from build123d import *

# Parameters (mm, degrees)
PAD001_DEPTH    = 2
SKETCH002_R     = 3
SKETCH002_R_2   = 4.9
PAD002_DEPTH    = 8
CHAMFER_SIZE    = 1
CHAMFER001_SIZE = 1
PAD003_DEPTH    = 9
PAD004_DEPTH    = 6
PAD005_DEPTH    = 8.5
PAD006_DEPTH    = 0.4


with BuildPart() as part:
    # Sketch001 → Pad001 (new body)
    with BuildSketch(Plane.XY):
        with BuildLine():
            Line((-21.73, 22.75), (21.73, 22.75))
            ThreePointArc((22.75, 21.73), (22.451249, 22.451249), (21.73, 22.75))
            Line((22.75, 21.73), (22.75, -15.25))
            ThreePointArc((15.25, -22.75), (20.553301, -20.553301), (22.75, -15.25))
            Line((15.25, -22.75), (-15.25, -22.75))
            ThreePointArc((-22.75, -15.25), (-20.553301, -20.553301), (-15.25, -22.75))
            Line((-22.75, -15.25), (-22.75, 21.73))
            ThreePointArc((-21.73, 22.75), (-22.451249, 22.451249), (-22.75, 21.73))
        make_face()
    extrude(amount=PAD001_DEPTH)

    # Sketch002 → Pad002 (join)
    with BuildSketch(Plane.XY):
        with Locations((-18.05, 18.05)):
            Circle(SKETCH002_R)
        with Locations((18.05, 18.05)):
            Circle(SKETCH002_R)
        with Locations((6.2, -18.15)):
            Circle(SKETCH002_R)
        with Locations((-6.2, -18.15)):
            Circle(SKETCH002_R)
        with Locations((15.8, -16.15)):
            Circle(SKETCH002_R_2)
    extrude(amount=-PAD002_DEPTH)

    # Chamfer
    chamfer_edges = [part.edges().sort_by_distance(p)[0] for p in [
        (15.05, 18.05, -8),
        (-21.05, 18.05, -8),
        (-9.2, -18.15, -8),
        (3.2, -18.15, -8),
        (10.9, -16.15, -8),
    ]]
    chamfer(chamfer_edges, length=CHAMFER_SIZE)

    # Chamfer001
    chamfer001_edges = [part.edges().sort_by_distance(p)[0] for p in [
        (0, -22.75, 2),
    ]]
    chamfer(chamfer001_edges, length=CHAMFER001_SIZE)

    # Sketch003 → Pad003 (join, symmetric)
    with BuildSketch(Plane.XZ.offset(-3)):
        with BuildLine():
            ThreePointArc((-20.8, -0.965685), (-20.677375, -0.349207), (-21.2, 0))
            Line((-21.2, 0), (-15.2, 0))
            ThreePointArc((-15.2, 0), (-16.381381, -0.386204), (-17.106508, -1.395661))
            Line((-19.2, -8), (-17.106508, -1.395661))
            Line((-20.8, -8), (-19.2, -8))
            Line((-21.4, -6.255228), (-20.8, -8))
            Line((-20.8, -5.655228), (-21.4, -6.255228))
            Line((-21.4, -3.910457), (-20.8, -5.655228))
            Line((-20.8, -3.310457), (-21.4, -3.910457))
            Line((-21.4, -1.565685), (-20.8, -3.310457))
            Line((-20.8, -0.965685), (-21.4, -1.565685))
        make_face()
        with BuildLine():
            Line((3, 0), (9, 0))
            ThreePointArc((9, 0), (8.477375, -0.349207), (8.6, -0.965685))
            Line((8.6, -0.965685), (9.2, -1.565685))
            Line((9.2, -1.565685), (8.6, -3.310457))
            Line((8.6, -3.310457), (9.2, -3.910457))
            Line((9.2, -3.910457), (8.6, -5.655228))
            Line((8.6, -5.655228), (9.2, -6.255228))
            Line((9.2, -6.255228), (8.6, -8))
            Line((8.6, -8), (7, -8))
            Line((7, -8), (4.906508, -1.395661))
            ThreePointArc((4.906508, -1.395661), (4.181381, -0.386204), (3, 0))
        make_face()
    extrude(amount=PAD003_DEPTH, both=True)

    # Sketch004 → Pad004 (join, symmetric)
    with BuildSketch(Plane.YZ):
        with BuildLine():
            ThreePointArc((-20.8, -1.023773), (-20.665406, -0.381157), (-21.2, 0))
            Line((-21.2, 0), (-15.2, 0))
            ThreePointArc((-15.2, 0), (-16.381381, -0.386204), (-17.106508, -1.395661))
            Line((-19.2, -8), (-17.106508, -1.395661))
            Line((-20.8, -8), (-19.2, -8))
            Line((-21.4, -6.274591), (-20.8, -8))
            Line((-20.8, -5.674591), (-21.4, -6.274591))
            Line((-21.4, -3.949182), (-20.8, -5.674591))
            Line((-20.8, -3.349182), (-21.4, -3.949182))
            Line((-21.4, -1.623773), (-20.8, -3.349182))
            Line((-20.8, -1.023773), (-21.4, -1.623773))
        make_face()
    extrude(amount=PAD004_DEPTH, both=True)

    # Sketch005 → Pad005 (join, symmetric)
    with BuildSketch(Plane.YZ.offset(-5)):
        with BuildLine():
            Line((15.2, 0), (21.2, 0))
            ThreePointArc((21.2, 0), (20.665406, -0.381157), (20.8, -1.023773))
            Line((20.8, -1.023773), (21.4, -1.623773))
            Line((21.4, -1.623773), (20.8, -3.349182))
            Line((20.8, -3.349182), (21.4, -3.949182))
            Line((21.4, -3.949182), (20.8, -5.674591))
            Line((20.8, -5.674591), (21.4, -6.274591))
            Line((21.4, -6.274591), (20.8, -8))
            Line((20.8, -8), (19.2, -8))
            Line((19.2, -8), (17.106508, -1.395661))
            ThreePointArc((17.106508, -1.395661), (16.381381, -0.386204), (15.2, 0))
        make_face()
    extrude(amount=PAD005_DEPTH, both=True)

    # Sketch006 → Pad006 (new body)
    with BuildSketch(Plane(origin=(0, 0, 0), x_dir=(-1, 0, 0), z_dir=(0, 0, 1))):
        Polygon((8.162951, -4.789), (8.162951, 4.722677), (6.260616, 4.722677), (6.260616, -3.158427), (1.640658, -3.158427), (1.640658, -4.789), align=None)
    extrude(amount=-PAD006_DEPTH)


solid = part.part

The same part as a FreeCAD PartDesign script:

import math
import FreeCAD as App
import Part
import Sketcher
Q = App.Units.Quantity


def edges_at(feature, points):
    """Names of the edges that pass closest to the given points."""
    edges = feature.Shape.Edges
    near = lambda p: min(range(len(edges)), key=lambda i: edges[i].distToShape(Part.Vertex(*p))[0])
    return sorted({f"Edge{near(p) + 1}" for p in points})


def add_polygon(sketch, points):
    """Adds a closed chain of lines whose ends are joined by coincident constraints."""
    first, n = sketch.GeometryCount, len(points)
    for a, b in zip(points, points[1:] + points[:1]):
        sketch.addGeometry(Part.LineSegment(App.Vector(*a, 0), App.Vector(*b, 0)), False)
    for i in range(n):
        sketch.addConstraint(Sketcher.Constraint("Coincident", first + i, 2, first + (i + 1) % n, 1))

doc = App.newDocument("Part")
body = doc.addObject("PartDesign::Body", "Body")

# Sketch on XY plane
sketch1 = doc.addObject("Sketcher::SketchObject", "Sketch")
body.addObject(sketch1)
sketch1.AttachmentSupport = (doc.XY_Plane, [""])
sketch1.MapMode = "FlatFace"
sketch1.addGeometry(Part.LineSegment(App.Vector(21.7, 22.8, 0), App.Vector(-21.7, 22.8, 0)), False)
sketch1.addGeometry(Part.ArcOfCircle(Part.Circle(App.Vector(-21.7, 21.7, 0), App.Vector(0, 0, 1), 1), math.radians(90), math.radians(180)), False)
sketch1.addGeometry(Part.LineSegment(App.Vector(-22.8, 21.7, 0), App.Vector(-22.8, -15.2, 0)), False)
sketch1.addGeometry(Part.ArcOfCircle(Part.Circle(App.Vector(-15.3, -15.3, 0), App.Vector(0, 0, 1), 7.5), math.radians(180), math.radians(270)), False)
sketch1.addGeometry(Part.LineSegment(App.Vector(-15.2, -22.8, 0), App.Vector(15.2, -22.8, 0)), False)
sketch1.addGeometry(Part.ArcOfCircle(Part.Circle(App.Vector(15.3, -15.3, 0), App.Vector(0, 0, 1), 7.5), math.radians(-90), math.radians(0)), False)
sketch1.addGeometry(Part.LineSegment(App.Vector(22.8, -15.2, 0), App.Vector(22.8, 21.7, 0)), False)
sketch1.addGeometry(Part.ArcOfCircle(Part.Circle(App.Vector(21.7, 21.7, 0), App.Vector(0, 0, 1), 1), math.radians(0), math.radians(90)), False)
sketch1.addConstraint(Sketcher.Constraint("Tangent", 0, 2, 1, 1))
sketch1.addConstraint(Sketcher.Constraint("Tangent", 1, 2, 2, 1))
sketch1.addConstraint(Sketcher.Constraint("Tangent", 2, 2, 3, 1))
sketch1.addConstraint(Sketcher.Constraint("Tangent", 3, 2, 4, 1))
sketch1.addConstraint(Sketcher.Constraint("Tangent", 4, 2, 5, 1))
sketch1.addConstraint(Sketcher.Constraint("Tangent", 5, 2, 6, 1))
sketch1.addConstraint(Sketcher.Constraint("Tangent", 6, 2, 7, 1))
sketch1.addConstraint(Sketcher.Constraint("Tangent", 7, 2, 0, 1))
sketch1.addConstraint(Sketcher.Constraint("Horizontal", 0))
sketch1.addConstraint(Sketcher.Constraint("Vertical", 2))
sketch1.addConstraint(Sketcher.Constraint("Horizontal", 4))
sketch1.addConstraint(Sketcher.Constraint("Vertical", 6))
sketch1.addConstraint(Sketcher.Constraint("Equal", 3, 5))
sketch1.addConstraint(Sketcher.Constraint("Equal", 1, 7))
sketch1.addConstraint(Sketcher.Constraint("Radius", 3, 7.5))
sketch1.addConstraint(Sketcher.Constraint("Radius", 1, 1.02))
sketch1.addConstraint(Sketcher.Constraint("DistanceX", 4, 1, 4, 2, 30.5))
sketch1.addConstraint(Sketcher.Constraint("DistanceY", 3, 3, 0, 2, 38.0))
sketch1.addConstraint(Sketcher.Constraint("DistanceX", 1, 3, -1, 1, 21.73))
sketch1.addConstraint(Sketcher.Constraint("DistanceY", -1, 1, 1, 3, 21.73))
pad1 = doc.addObject("PartDesign::Pad", "Pad")
body.addObject(pad1)
pad1.Profile = sketch1
pad1.Length = 2

# Sketch on XY plane
sketch2 = doc.addObject("Sketcher::SketchObject", "Sketch001")
body.addObject(sketch2)
sketch2.AttachmentSupport = (doc.XY_Plane, [""])
sketch2.MapMode = "FlatFace"
sketch2.addGeometry(Part.Circle(App.Vector(-18.1, 18.1, 0), App.Vector(0, 0, 1), 3), False)
sketch2.addGeometry(Part.Circle(App.Vector(18.1, 18.1, 0), App.Vector(0, 0, 1), 3), False)
sketch2.addGeometry(Part.Circle(App.Vector(6.2, -18.1, 0), App.Vector(0, 0, 1), 3), False)
sketch2.addGeometry(Part.Circle(App.Vector(-6.2, -18.1, 0), App.Vector(0, 0, 1), 3), False)
sketch2.addGeometry(Part.Circle(App.Vector(15.8, -16.1, 0), App.Vector(0, 0, 1), 4.9), False)
sketch2.addConstraint(Sketcher.Constraint("Equal", 0, 1))
sketch2.addConstraint(Sketcher.Constraint("Equal", 1, 2))
sketch2.addConstraint(Sketcher.Constraint("Equal", 2, 3))
sketch2.addConstraint(Sketcher.Constraint("Symmetric", 0, 3, 1, 3, -2))
sketch2.addConstraint(Sketcher.Constraint("Symmetric", 2, 3, 3, 3, -2))
sketch2.addConstraint(Sketcher.Constraint("Diameter", 0, 6.0))
sketch2.addConstraint(Sketcher.Constraint("Diameter", 4, 9.8))
sketch2.addConstraint(Sketcher.Constraint("DistanceY", 2, 3, 4, 3, 2.0))
sketch2.addConstraint(Sketcher.Constraint("DistanceX", 3, 3, 4, 3, 22.0))
sketch2.addConstraint(Sketcher.Constraint("DistanceX", -1, 1, 2, 3, 6.2))
sketch2.addConstraint(Sketcher.Constraint("DistanceX", 0, 3, 1, 3, 36.1))
sketch2.addConstraint(Sketcher.Constraint("DistanceY", 2, 3, 1, 3, 36.2))
sketch2.addConstraint(Sketcher.Constraint("DistanceY", -1, 1, 0, 3, 18.05))
pad2 = doc.addObject("PartDesign::Pad", "Pad001")
body.addObject(pad2)
pad2.Profile = sketch2
pad2.Length = 8
pad2.Reversed = True
doc.recompute()

chamfer = doc.addObject("PartDesign::Chamfer", "Chamfer")
body.addObject(chamfer)
chamfer.Base = (pad2, edges_at(pad2, [
    (15.05, 18.05, -8),
    (-21.05, 18.05, -8),
    (-9.2, -18.15, -8),
    (3.2, -18.15, -8),
    (10.9, -16.15, -8),
]))
chamfer.Size = 1
doc.recompute()

chamfer2 = doc.addObject("PartDesign::Chamfer", "Chamfer001")
body.addObject(chamfer2)
chamfer2.Base = (chamfer, edges_at(chamfer, [(0, -22.75, 2)]))
chamfer2.Size = 1

# Sketch on XZ plane
sketch3 = doc.addObject("Sketcher::SketchObject", "Sketch002")
body.addObject(sketch3)
sketch3.AttachmentSupport = (doc.XZ_Plane, [""])
sketch3.MapMode = "FlatFace"
sketch3.AttachmentOffset = App.Placement(App.Vector(0, 0, -3), App.Rotation())
sketch3.addGeometry(Part.ArcOfCircle(Part.Circle(App.Vector(-21.2, -0.6, 0), App.Vector(0, 0, 1), 0.6), math.radians(-45), math.radians(90)), False)
sketch3.addGeometry(Part.LineSegment(App.Vector(-20.8, -1, 0), App.Vector(-21.4, -1.6, 0)), False)
sketch3.addGeometry(Part.LineSegment(App.Vector(-21.4, -1.6, 0), App.Vector(-20.8, -3.3, 0)), False)
sketch3.addGeometry(Part.LineSegment(App.Vector(-20.8, -3.3, 0), App.Vector(-21.4, -3.9, 0)), False)
sketch3.addGeometry(Part.LineSegment(App.Vector(-21.4, -3.9, 0), App.Vector(-20.8, -5.7, 0)), False)
sketch3.addGeometry(Part.LineSegment(App.Vector(-20.8, -5.7, 0), App.Vector(-21.4, -6.3, 0)), False)
sketch3.addGeometry(Part.LineSegment(App.Vector(-21.4, -6.3, 0), App.Vector(-20.8, -8, 0)), False)
sketch3.addGeometry(Part.LineSegment(App.Vector(-20.8, -8, 0), App.Vector(-19.2, -8, 0)), False)
sketch3.addGeometry(Part.LineSegment(App.Vector(-19.2, -8, 0), App.Vector(-17.1, -1.4, 0)), False)
sketch3.addGeometry(Part.ArcOfCircle(Part.Circle(App.Vector(-15.2, -2, 0), App.Vector(0, 0, 1), 2), math.radians(90), math.radians(162)), False)
sketch3.addGeometry(Part.LineSegment(App.Vector(-15.2, 0, 0), App.Vector(-21.2, 0, 0)), False)
sketch3.addGeometry(Part.LineSegment(App.Vector(9, 0, 0), App.Vector(3, 0, 0)), False)
sketch3.addGeometry(Part.ArcOfCircle(Part.Circle(App.Vector(3, -2, 0), App.Vector(0, 0, 1), 2), math.radians(18), math.radians(90)), False)
sketch3.addGeometry(Part.LineSegment(App.Vector(4.9, -1.4, 0), App.Vector(7, -8, 0)), False)
sketch3.addGeometry(Part.LineSegment(App.Vector(7, -8, 0), App.Vector(8.6, -8, 0)), False)
sketch3.addGeometry(Part.LineSegment(App.Vector(8.6, -8, 0), App.Vector(9.2, -6.3, 0)), False)
sketch3.addGeometry(Part.LineSegment(App.Vector(9.2, -6.3, 0), App.Vector(8.6, -5.7, 0)), False)
sketch3.addGeometry(Part.LineSegment(App.Vector(8.6, -5.7, 0), App.Vector(9.2, -3.9, 0)), False)
sketch3.addGeometry(Part.LineSegment(App.Vector(9.2, -3.9, 0), App.Vector(8.6, -3.3, 0)), False)
sketch3.addGeometry(Part.LineSegment(App.Vector(8.6, -3.3, 0), App.Vector(9.2, -1.6, 0)), False)
sketch3.addGeometry(Part.LineSegment(App.Vector(9.2, -1.6, 0), App.Vector(8.6, -1, 0)), False)
sketch3.addGeometry(Part.ArcOfCircle(Part.Circle(App.Vector(9, -0.6, 0), App.Vector(0, 0, 1), 0.6), math.radians(90), math.radians(225)), False)
sketch3.addConstraint(Sketcher.Constraint("Tangent", 0, 1, 1, 1))
sketch3.addConstraint(Sketcher.Constraint("Coincident", 1, 2, 2, 1))
sketch3.addConstraint(Sketcher.Constraint("Coincident", 2, 2, 3, 1))
sketch3.addConstraint(Sketcher.Constraint("Coincident", 3, 2, 4, 1))
sketch3.addConstraint(Sketcher.Constraint("Coincident", 4, 2, 5, 1))
sketch3.addConstraint(Sketcher.Constraint("Coincident", 5, 2, 6, 1))
sketch3.addConstraint(Sketcher.Constraint("Coincident", 6, 2, 7, 1))
sketch3.addConstraint(Sketcher.Constraint("Coincident", 7, 2, 8, 1))
sketch3.addConstraint(Sketcher.Constraint("Tangent", 8, 2, 9, 2))
sketch3.addConstraint(Sketcher.Constraint("Tangent", 9, 1, 10, 1))
sketch3.addConstraint(Sketcher.Constraint("Tangent", 10, 2, 0, 2))
sketch3.addConstraint(Sketcher.Constraint("Tangent", 11, 2, 12, 2))
sketch3.addConstraint(Sketcher.Constraint("Tangent", 12, 1, 13, 1))
sketch3.addConstraint(Sketcher.Constraint("Coincident", 13, 2, 14, 1))
sketch3.addConstraint(Sketcher.Constraint("Coincident", 14, 2, 15, 1))
sketch3.addConstraint(Sketcher.Constraint("Coincident", 15, 2, 16, 1))
sketch3.addConstraint(Sketcher.Constraint("Coincident", 16, 2, 17, 1))
sketch3.addConstraint(Sketcher.Constraint("Coincident", 17, 2, 18, 1))
sketch3.addConstraint(Sketcher.Constraint("Coincident", 18, 2, 19, 1))
sketch3.addConstraint(Sketcher.Constraint("Coincident", 19, 2, 20, 1))
sketch3.addConstraint(Sketcher.Constraint("Tangent", 20, 2, 21, 2))
sketch3.addConstraint(Sketcher.Constraint("Tangent", 21, 1, 11, 1))
sketch3.addConstraint(Sketcher.Constraint("Horizontal", 7))
sketch3.addConstraint(Sketcher.Constraint("Horizontal", 10))
sketch3.addConstraint(Sketcher.Constraint("Horizontal", 11))
sketch3.addConstraint(Sketcher.Constraint("Horizontal", 14))
sketch3.addConstraint(Sketcher.Constraint("Equal", 9, 12))
sketch3.addConstraint(Sketcher.Constraint("Equal", 0, 21))
sketch3.addConstraint(Sketcher.Constraint("PointOnObject", 9, 1, -1))
sketch3.addConstraint(Sketcher.Constraint("PointOnObject", 11, 2, -1))
sketch3.addConstraint(Sketcher.Constraint("Parallel", 1, 3))
sketch3.addConstraint(Sketcher.Constraint("Parallel", 2, 4))
sketch3.addConstraint(Sketcher.Constraint("Parallel", 3, 5))
sketch3.addConstraint(Sketcher.Constraint("Parallel", 4, 6))
sketch3.addConstraint(Sketcher.Constraint("Perpendicular", 5, 16))
sketch3.addConstraint(Sketcher.Constraint("Parallel", 15, 17))
sketch3.addConstraint(Sketcher.Constraint("Parallel", 16, 18))
sketch3.addConstraint(Sketcher.Constraint("Parallel", 17, 19))
sketch3.addConstraint(Sketcher.Constraint("Parallel", 18, 20))
sketch3.addConstraint(Sketcher.Constraint("Horizontal", 8, 2, 12, 1))
sketch3.addConstraint(Sketcher.Constraint("Horizontal", 7, 2, 13, 2))
sketch3.addConstraint(Sketcher.Constraint("Horizontal", 5, 2, 15, 2))
sketch3.addConstraint(Sketcher.Constraint("Horizontal", 4, 2, 16, 2))
sketch3.addConstraint(Sketcher.Constraint("Horizontal", 3, 2, 17, 2))
sketch3.addConstraint(Sketcher.Constraint("Horizontal", 2, 2, 18, 2))
sketch3.addConstraint(Sketcher.Constraint("Horizontal", 1, 2, 19, 2))
sketch3.addConstraint(Sketcher.Constraint("Horizontal", 0, 1, 20, 2))
sketch3.addConstraint(Sketcher.Constraint("Vertical", 0, 1, 2, 2))
sketch3.addConstraint(Sketcher.Constraint("Vertical", 1, 2, 3, 2))
sketch3.addConstraint(Sketcher.Constraint("Vertical", 2, 2, 4, 2))
sketch3.addConstraint(Sketcher.Constraint("Vertical", 3, 2, 5, 2))
sketch3.addConstraint(Sketcher.Constraint("Vertical", 4, 2, 6, 2))
sketch3.addConstraint(Sketcher.Constraint("Vertical", 14, 2, 16, 2))
sketch3.addConstraint(Sketcher.Constraint("Equal", 10, 11))
sketch3.addConstraint(Sketcher.Constraint("Radius", 9, 2.0))
sketch3.addConstraint(Sketcher.Constraint("DistanceX", 10, 2, 10, 1, 6.0))
sketch3.addConstraint(Sketcher.Constraint("DistanceX", 7, 1, 7, 2, 1.6))
sketch3.addConstraint(Sketcher.Constraint("DistanceX", -1, 1, 12, 3, 2.999999))
sketch3.addConstraint(Sketcher.Constraint("DistanceY", 6, 2, -1, 1, 8.0))
sketch3.addConstraint(Sketcher.Constraint("DistanceX", -1, 1, 13, 2, 7.0))
sketch3.addConstraint(Sketcher.Constraint("DistanceY", 1, 2, 0, 3, 1.0))
sketch3.addConstraint(Sketcher.Constraint("DistanceX", 0, 3, -1, 1, 21.2))
pad3 = doc.addObject("PartDesign::Pad", "Pad002")
body.addObject(pad3)
pad3.Profile = sketch3
pad3.Length = 18
pad3.Midplane = True

# Sketch on YZ plane
sketch4 = doc.addObject("Sketcher::SketchObject", "Sketch003")
body.addObject(sketch4)
sketch4.AttachmentSupport = (doc.YZ_Plane, [""])
sketch4.MapMode = "FlatFace"
sketch4.addGeometry(Part.ArcOfCircle(Part.Circle(App.Vector(-21.2, -0.6, 0), App.Vector(0, 0, 1), 0.6), math.radians(-45), math.radians(88)), False)
sketch4.addGeometry(Part.LineSegment(App.Vector(-20.8, -1, 0), App.Vector(-21.4, -1.6, 0)), False)
sketch4.addGeometry(Part.LineSegment(App.Vector(-21.4, -1.6, 0), App.Vector(-20.8, -3.3, 0)), False)
sketch4.addGeometry(Part.LineSegment(App.Vector(-20.8, -3.3, 0), App.Vector(-21.4, -3.9, 0)), False)
sketch4.addGeometry(Part.LineSegment(App.Vector(-21.4, -3.9, 0), App.Vector(-20.8, -5.7, 0)), False)
sketch4.addGeometry(Part.LineSegment(App.Vector(-20.8, -5.7, 0), App.Vector(-21.4, -6.3, 0)), False)
sketch4.addGeometry(Part.LineSegment(App.Vector(-21.4, -6.3, 0), App.Vector(-20.8, -8, 0)), False)
sketch4.addGeometry(Part.LineSegment(App.Vector(-20.8, -8, 0), App.Vector(-19.2, -8, 0)), False)
sketch4.addGeometry(Part.LineSegment(App.Vector(-19.2, -8, 0), App.Vector(-17.1, -1.4, 0)), False)
sketch4.addGeometry(Part.ArcOfCircle(Part.Circle(App.Vector(-15.2, -2, 0), App.Vector(0, 0, 1), 2), math.radians(90), math.radians(162)), False)
sketch4.addGeometry(Part.LineSegment(App.Vector(-15.2, 0, 0), App.Vector(-21.2, 0, 0)), False)
sketch4.addConstraint(Sketcher.Constraint("Tangent", 0, 1, 1, 1))
sketch4.addConstraint(Sketcher.Constraint("Coincident", 1, 2, 2, 1))
sketch4.addConstraint(Sketcher.Constraint("Coincident", 2, 2, 3, 1))
sketch4.addConstraint(Sketcher.Constraint("Coincident", 3, 2, 4, 1))
sketch4.addConstraint(Sketcher.Constraint("Coincident", 4, 2, 5, 1))
sketch4.addConstraint(Sketcher.Constraint("Coincident", 5, 2, 6, 1))
sketch4.addConstraint(Sketcher.Constraint("Coincident", 6, 2, 7, 1))
sketch4.addConstraint(Sketcher.Constraint("Coincident", 7, 2, 8, 1))
sketch4.addConstraint(Sketcher.Constraint("Tangent", 8, 2, 9, 2))
sketch4.addConstraint(Sketcher.Constraint("Tangent", 9, 1, 10, 1))
sketch4.addConstraint(Sketcher.Constraint("Coincident", 10, 2, 0, 2))
sketch4.addConstraint(Sketcher.Constraint("Horizontal", 7))
sketch4.addConstraint(Sketcher.Constraint("Horizontal", 10))
sketch4.addConstraint(Sketcher.Constraint("PointOnObject", 9, 1, -1))
sketch4.addConstraint(Sketcher.Constraint("Parallel", 1, 3))
sketch4.addConstraint(Sketcher.Constraint("Parallel", 2, 4))
sketch4.addConstraint(Sketcher.Constraint("Parallel", 3, 5))
sketch4.addConstraint(Sketcher.Constraint("Parallel", 4, 6))
sketch4.addConstraint(Sketcher.Constraint("Vertical", 0, 1, 2, 2))
sketch4.addConstraint(Sketcher.Constraint("Vertical", 1, 2, 3, 2))
sketch4.addConstraint(Sketcher.Constraint("Vertical", 2, 2, 4, 2))
sketch4.addConstraint(Sketcher.Constraint("Vertical", 3, 2, 5, 2))
sketch4.addConstraint(Sketcher.Constraint("Vertical", 4, 2, 6, 2))
sketch4.addConstraint(Sketcher.Constraint("Radius", 9, 2.0))
sketch4.addConstraint(Sketcher.Constraint("Radius", 0, 0.6))
sketch4.addConstraint(Sketcher.Constraint("DistanceX", 10, 2, 10, 1, 6.0))
sketch4.addConstraint(Sketcher.Constraint("Angle", 1, Q("-135 deg")))
sketch4.addConstraint(Sketcher.Constraint("DistanceX", 7, 1, 7, 2, 1.6))
sketch4.addConstraint(Sketcher.Constraint("DistanceY", 6, 2, -1, 1, 8.0))
sketch4.addConstraint(Sketcher.Constraint("DistanceX", 9, 3, -1, 1, 15.199999))
sketch4.addConstraint(Sketcher.Constraint("DistanceX", 0, 1, -1, 1, 20.8))
sketch4.addConstraint(Sketcher.Constraint("DistanceX", 1, 2, -1, 1, 21.4))
pad4 = doc.addObject("PartDesign::Pad", "Pad003")
body.addObject(pad4)
pad4.Profile = sketch4
pad4.Length = 12
pad4.Midplane = True

# Sketch on YZ plane
sketch5 = doc.addObject("Sketcher::SketchObject", "Sketch004")
body.addObject(sketch5)
sketch5.AttachmentSupport = (doc.YZ_Plane, [""])
sketch5.MapMode = "FlatFace"
sketch5.AttachmentOffset = App.Placement(App.Vector(0, 0, -5), App.Rotation())
sketch5.addGeometry(Part.LineSegment(App.Vector(21.2, 0, 0), App.Vector(15.2, 0, 0)), False)
sketch5.addGeometry(Part.ArcOfCircle(Part.Circle(App.Vector(15.2, -2, 0), App.Vector(0, 0, 1), 2), math.radians(18), math.radians(90)), False)
sketch5.addGeometry(Part.LineSegment(App.Vector(17.1, -1.4, 0), App.Vector(19.2, -8, 0)), False)
sketch5.addGeometry(Part.LineSegment(App.Vector(19.2, -8, 0), App.Vector(20.8, -8, 0)), False)
sketch5.addGeometry(Part.LineSegment(App.Vector(20.8, -8, 0), App.Vector(21.4, -6.3, 0)), False)
sketch5.addGeometry(Part.LineSegment(App.Vector(21.4, -6.3, 0), App.Vector(20.8, -5.7, 0)), False)
sketch5.addGeometry(Part.LineSegment(App.Vector(20.8, -5.7, 0), App.Vector(21.4, -3.9, 0)), False)
sketch5.addGeometry(Part.LineSegment(App.Vector(21.4, -3.9, 0), App.Vector(20.8, -3.3, 0)), False)
sketch5.addGeometry(Part.LineSegment(App.Vector(20.8, -3.3, 0), App.Vector(21.4, -1.6, 0)), False)
sketch5.addGeometry(Part.LineSegment(App.Vector(21.4, -1.6, 0), App.Vector(20.8, -1, 0)), False)
sketch5.addGeometry(Part.ArcOfCircle(Part.Circle(App.Vector(21.2, -0.6, 0), App.Vector(0, 0, 1), 0.6), math.radians(92), math.radians(225)), False)
sketch5.addConstraint(Sketcher.Constraint("Tangent", 0, 2, 1, 2))
sketch5.addConstraint(Sketcher.Constraint("Tangent", 1, 1, 2, 1))
sketch5.addConstraint(Sketcher.Constraint("Coincident", 2, 2, 3, 1))
sketch5.addConstraint(Sketcher.Constraint("Coincident", 3, 2, 4, 1))
sketch5.addConstraint(Sketcher.Constraint("Coincident", 4, 2, 5, 1))
sketch5.addConstraint(Sketcher.Constraint("Coincident", 5, 2, 6, 1))
sketch5.addConstraint(Sketcher.Constraint("Coincident", 6, 2, 7, 1))
sketch5.addConstraint(Sketcher.Constraint("Coincident", 7, 2, 8, 1))
sketch5.addConstraint(Sketcher.Constraint("Coincident", 8, 2, 9, 1))
sketch5.addConstraint(Sketcher.Constraint("Tangent", 9, 2, 10, 2))
sketch5.addConstraint(Sketcher.Constraint("Coincident", 10, 1, 0, 1))
sketch5.addConstraint(Sketcher.Constraint("Horizontal", 0))
sketch5.addConstraint(Sketcher.Constraint("Horizontal", 3))
sketch5.addConstraint(Sketcher.Constraint("PointOnObject", 0, 2, -1))
sketch5.addConstraint(Sketcher.Constraint("Parallel", 4, 6))
sketch5.addConstraint(Sketcher.Constraint("Parallel", 5, 7))
sketch5.addConstraint(Sketcher.Constraint("Parallel", 6, 8))
sketch5.addConstraint(Sketcher.Constraint("Parallel", 7, 9))
sketch5.addConstraint(Sketcher.Constraint("Vertical", 3, 2, 5, 2))
sketch5.addConstraint(Sketcher.Constraint("Vertical", 4, 2, 6, 2))
sketch5.addConstraint(Sketcher.Constraint("Vertical", 5, 2, 7, 2))
sketch5.addConstraint(Sketcher.Constraint("Vertical", 6, 2, 8, 2))
sketch5.addConstraint(Sketcher.Constraint("Vertical", 7, 2, 9, 2))
sketch5.addConstraint(Sketcher.Constraint("Radius", 1, 2.0))
sketch5.addConstraint(Sketcher.Constraint("Radius", 10, 0.6))
sketch5.addConstraint(Sketcher.Constraint("DistanceX", 0, 2, 0, 1, 6.0))
sketch5.addConstraint(Sketcher.Constraint("Angle", 5, Q("135 deg")))
sketch5.addConstraint(Sketcher.Constraint("DistanceX", 3, 1, 3, 2, 1.6))
sketch5.addConstraint(Sketcher.Constraint("DistanceY", 2, 2, -1, 1, 8.0))
sketch5.addConstraint(Sketcher.Constraint("DistanceX", 1, 3, 2, 2, 4.000001))
sketch5.addConstraint(Sketcher.Constraint("DistanceX", -1, 1, 1, 3, 15.199999))
sketch5.addConstraint(Sketcher.Constraint("DistanceX", -1, 1, 4, 2, 21.4))
pad5 = doc.addObject("PartDesign::Pad", "Pad004")
body.addObject(pad5)
pad5.Profile = sketch5
pad5.Length = 17
pad5.Midplane = True

# Sketch on XY plane
sketch6 = doc.addObject("Sketcher::SketchObject", "Sketch005")
body.addObject(sketch6)
sketch6.AttachmentSupport = (doc.XY_Plane, [""])
sketch6.MapMode = "FlatFace"
add_polygon(sketch6, [(-8.2, 4.8), (-8.2, -4.7), (-6.3, -4.7), (-6.3, 3.2), (-1.6, 3.2), (-1.6, 4.8)])  # lines 0-5
sketch6.addConstraint(Sketcher.Constraint("Vertical", 0))
sketch6.addConstraint(Sketcher.Constraint("Horizontal", 1))
sketch6.addConstraint(Sketcher.Constraint("Vertical", 2))
sketch6.addConstraint(Sketcher.Constraint("Horizontal", 3))
sketch6.addConstraint(Sketcher.Constraint("Vertical", 4))
sketch6.addConstraint(Sketcher.Constraint("Horizontal", 5))
sketch6.addConstraint(Sketcher.Constraint("DistanceY", -1, 1, 4, 2, 4.789))
sketch6.addConstraint(Sketcher.Constraint("DistanceX", 1, 1, 1, 2, 1.902335))
sketch6.addConstraint(Sketcher.Constraint("DistanceX", 3, 1, 3, 2, 4.619958))
sketch6.addConstraint(Sketcher.Constraint("DistanceY", 0, 2, 0, 1, 9.511677))
sketch6.addConstraint(Sketcher.Constraint("DistanceY", 2, 1, 2, 2, 7.881104))
sketch6.addConstraint(Sketcher.Constraint("DistanceX", 0, 2, -1, 1, 8.162951))
pad6 = doc.addObject("PartDesign::Pad", "Pad005")
body.addObject(pad6)
pad6.Profile = sketch6
pad6.Length = 0.4
pad6.Reversed = True

doc.recompute()
